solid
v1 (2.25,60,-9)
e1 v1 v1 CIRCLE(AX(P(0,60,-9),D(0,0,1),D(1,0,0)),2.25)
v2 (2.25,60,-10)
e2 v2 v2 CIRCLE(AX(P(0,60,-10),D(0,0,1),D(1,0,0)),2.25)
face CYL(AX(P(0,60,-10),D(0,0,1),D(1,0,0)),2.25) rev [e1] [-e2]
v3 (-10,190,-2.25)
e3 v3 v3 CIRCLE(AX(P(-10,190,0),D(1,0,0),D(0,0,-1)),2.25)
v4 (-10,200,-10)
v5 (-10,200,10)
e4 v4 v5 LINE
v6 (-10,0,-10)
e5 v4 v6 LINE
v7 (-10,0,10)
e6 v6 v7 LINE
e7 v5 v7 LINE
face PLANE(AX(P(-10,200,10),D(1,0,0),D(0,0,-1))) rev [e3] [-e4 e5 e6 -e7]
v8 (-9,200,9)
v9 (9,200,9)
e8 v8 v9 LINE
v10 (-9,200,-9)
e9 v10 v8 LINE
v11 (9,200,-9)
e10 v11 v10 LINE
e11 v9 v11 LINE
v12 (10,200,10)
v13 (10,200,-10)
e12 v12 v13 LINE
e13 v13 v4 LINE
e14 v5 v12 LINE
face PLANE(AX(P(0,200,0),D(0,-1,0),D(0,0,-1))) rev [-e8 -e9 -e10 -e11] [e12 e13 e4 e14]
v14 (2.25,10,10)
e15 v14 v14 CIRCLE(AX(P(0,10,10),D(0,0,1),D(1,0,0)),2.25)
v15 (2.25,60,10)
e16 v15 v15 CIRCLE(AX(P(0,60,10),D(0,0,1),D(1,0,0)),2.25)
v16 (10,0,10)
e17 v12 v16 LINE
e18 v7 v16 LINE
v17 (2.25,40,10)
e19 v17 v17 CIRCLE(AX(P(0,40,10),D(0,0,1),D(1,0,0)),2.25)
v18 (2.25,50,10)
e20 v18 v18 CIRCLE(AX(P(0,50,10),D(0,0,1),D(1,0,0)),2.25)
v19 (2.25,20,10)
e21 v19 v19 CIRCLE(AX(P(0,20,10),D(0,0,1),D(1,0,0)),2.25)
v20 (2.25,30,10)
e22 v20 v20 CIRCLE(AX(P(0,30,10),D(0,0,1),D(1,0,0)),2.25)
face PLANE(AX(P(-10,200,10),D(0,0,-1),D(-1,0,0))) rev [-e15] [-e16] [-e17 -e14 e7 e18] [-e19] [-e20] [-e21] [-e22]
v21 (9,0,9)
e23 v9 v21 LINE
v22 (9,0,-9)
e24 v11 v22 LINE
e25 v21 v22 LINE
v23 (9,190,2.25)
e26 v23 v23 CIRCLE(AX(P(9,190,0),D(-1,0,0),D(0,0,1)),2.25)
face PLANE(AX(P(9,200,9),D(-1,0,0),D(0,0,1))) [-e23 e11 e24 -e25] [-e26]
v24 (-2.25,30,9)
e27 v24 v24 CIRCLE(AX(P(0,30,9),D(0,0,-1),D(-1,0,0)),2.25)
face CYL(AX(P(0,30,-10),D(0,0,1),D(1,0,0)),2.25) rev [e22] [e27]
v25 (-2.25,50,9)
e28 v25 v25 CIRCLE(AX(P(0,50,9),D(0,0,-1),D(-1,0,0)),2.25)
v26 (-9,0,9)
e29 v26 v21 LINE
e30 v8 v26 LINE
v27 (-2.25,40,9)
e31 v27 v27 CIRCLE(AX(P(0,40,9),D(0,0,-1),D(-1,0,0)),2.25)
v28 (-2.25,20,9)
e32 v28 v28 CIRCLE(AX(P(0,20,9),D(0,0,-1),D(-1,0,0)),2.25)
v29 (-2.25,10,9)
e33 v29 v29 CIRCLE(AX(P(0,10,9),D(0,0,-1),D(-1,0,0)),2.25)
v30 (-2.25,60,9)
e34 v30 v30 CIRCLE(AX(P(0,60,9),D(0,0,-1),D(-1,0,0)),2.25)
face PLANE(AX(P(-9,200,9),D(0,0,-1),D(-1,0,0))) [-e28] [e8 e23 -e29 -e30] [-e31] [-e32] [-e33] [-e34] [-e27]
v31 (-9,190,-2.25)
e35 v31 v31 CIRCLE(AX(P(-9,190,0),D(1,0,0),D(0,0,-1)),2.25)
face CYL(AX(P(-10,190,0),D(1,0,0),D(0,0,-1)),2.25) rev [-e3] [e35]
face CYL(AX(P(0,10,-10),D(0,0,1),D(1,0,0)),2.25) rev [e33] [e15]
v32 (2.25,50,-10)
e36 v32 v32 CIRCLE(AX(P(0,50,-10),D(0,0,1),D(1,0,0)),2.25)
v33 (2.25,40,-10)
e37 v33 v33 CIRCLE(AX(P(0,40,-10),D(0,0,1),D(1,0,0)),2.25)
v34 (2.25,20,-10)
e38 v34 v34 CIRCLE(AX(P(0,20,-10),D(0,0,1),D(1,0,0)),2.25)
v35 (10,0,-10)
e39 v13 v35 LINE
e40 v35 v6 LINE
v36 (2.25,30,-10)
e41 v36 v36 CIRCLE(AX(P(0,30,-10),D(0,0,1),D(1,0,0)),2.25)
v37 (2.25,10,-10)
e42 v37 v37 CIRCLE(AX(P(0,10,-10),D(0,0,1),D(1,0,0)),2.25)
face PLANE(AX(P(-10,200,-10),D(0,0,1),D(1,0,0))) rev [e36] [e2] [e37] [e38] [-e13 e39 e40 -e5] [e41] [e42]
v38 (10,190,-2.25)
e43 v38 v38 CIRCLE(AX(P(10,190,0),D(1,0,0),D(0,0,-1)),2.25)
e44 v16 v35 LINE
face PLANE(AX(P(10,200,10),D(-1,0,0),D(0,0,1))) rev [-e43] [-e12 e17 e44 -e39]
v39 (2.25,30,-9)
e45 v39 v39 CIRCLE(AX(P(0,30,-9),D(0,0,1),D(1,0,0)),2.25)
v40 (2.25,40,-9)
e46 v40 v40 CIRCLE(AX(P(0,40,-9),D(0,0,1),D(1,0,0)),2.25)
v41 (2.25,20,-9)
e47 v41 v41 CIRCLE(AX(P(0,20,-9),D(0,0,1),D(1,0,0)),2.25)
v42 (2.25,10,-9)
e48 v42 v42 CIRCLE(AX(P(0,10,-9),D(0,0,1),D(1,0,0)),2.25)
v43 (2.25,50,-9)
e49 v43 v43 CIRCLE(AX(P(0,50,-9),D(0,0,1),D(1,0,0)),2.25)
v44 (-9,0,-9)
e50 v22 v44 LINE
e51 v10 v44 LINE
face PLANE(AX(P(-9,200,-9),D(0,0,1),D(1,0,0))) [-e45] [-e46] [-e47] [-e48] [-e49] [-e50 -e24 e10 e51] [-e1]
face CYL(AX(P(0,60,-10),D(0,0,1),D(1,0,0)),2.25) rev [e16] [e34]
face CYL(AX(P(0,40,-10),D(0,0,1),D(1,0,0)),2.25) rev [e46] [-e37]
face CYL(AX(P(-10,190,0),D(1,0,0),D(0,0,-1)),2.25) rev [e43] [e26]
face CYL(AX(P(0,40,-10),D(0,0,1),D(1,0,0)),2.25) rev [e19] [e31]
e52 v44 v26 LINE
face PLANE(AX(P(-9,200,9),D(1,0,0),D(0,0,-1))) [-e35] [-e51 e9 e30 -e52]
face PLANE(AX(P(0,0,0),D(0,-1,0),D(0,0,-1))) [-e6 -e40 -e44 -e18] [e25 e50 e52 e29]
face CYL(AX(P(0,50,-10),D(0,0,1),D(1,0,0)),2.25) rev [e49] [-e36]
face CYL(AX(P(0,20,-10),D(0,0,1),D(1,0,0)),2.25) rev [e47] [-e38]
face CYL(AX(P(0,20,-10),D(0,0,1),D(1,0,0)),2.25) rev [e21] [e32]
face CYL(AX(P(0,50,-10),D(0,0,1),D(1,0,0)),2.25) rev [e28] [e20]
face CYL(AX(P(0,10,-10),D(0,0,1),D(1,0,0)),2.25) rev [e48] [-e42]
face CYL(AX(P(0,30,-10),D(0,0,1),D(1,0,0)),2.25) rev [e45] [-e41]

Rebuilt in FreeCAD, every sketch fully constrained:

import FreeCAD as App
import Part
import Sketcher
Q = App.Units.Quantity


def add_polygon(sketch, points):
    """Adds a closed chain of lines whose ends are joined by coincident constraints."""
    first, n = sketch.GeometryCount, len(points)
    for a, b in zip(points, points[1:] + points[:1]):
        sketch.addGeometry(Part.LineSegment(App.Vector(*a, 0), App.Vector(*b, 0)), False)
    for i in range(n):
        sketch.addConstraint(Sketcher.Constraint("Coincident", first + i, 2, first + (i + 1) % n, 1))

doc = App.newDocument("Part")
body = doc.addObject("PartDesign::Body", "Body")

# Sketch on XZ plane
sketch1 = body.newObject("Sketcher::SketchObject", "Sketch")
sketch1.AttachmentSupport = (doc.getObject("XZ_Plane"), [""])
sketch1.MapMode = "FlatFace"
add_polygon(sketch1, [(-10, -10), (-10, 10), (10, 10), (10, -10)])  # lines 0-3
add_polygon(sketch1, [(9, 9), (-9, 9), (-9, -9), (9, -9)])  # lines 4-7
sketch1.addConstraint(Sketcher.Constraint("Vertical", 0))
sketch1.addConstraint(Sketcher.Constraint("Horizontal", 1))
sketch1.addConstraint(Sketcher.Constraint("Vertical", 2))
sketch1.addConstraint(Sketcher.Constraint("Horizontal", 3))
sketch1.addConstraint(Sketcher.Constraint("Horizontal", 4))
sketch1.addConstraint(Sketcher.Constraint("Vertical", 5))
sketch1.addConstraint(Sketcher.Constraint("Horizontal", 6))
sketch1.addConstraint(Sketcher.Constraint("Vertical", 7))
sketch1.addConstraint(Sketcher.Constraint("Symmetric", 0, 2, 2, 2, -1, 1))
sketch1.addConstraint(Sketcher.Constraint("Symmetric", 4, 2, 6, 2, -1, 1))
sketch1.addConstraint(Sketcher.Constraint("Equal", 3, 0))
sketch1.addConstraint(Sketcher.Constraint("Equal", 6, 5))
sketch1.addConstraint(Sketcher.Constraint("DistanceX", 1, 1, 1, 2, Q("20 mm")))
sketch1.addConstraint(Sketcher.Constraint("DistanceX", 4, 2, 4, 1, Q("18 mm")))
pad1 = body.newObject("PartDesign::Pad", "Pad")
pad1.Profile = sketch1
pad1.Length = 200
pad1.Reversed = True

# Sketch on XY plane
sketch2 = body.newObject("Sketcher::SketchObject", "Sketch001")
sketch2.AttachmentSupport = (doc.getObject("XY_Plane"), [""])
sketch2.MapMode = "FlatFace"
sketch2.AttachmentOffset = App.Placement(App.Vector(0, 0, 10), App.Rotation())
sketch2.addGeometry(Part.Circle(App.Vector(0, 10, 0), App.Vector(0, 0, 1), 2.25), False)
sketch2.addGeometry(Part.Circle(App.Vector(0, 20, 0), App.Vector(0, 0, 1), 2.25), False)
sketch2.addGeometry(Part.Circle(App.Vector(0, 30, 0), App.Vector(0, 0, 1), 2.25), False)
sketch2.addGeometry(Part.Circle(App.Vector(0, 40, 0), App.Vector(0, 0, 1), 2.25), False)
sketch2.addGeometry(Part.Circle(App.Vector(0, 50, 0), App.Vector(0, 0, 1), 2.25), False)
sketch2.addGeometry(Part.Circle(App.Vector(0, 60, 0), App.Vector(0, 0, 1), 2.25), False)
sketch2.addConstraint(Sketcher.Constraint("Equal", 0, 1))
sketch2.addConstraint(Sketcher.Constraint("Equal", 1, 2))
sketch2.addConstraint(Sketcher.Constraint("Equal", 2, 3))
sketch2.addConstraint(Sketcher.Constraint("Equal", 3, 4))
sketch2.addConstraint(Sketcher.Constraint("Equal", 4, 5))
sketch2.addConstraint(Sketcher.Constraint("PointOnObject", 0, 3, -2))
sketch2.addConstraint(Sketcher.Constraint("PointOnObject", 1, 3, -2))
sketch2.addConstraint(Sketcher.Constraint("PointOnObject", 2, 3, -2))
sketch2.addConstraint(Sketcher.Constraint("PointOnObject", 3, 3, -2))
sketch2.addConstraint(Sketcher.Constraint("PointOnObject", 4, 3, -2))
sketch2.addConstraint(Sketcher.Constraint("PointOnObject", 5, 3, -2))
sketch2.addConstraint(Sketcher.Constraint("Diameter", 0, Q("4.5 mm")))
sketch2.addConstraint(Sketcher.Constraint("DistanceY", -1, 1, 0, 3, Q("10 mm")))
sketch2.addConstraint(Sketcher.Constraint("DistanceY", -1, 1, 1, 3, Q("20 mm")))
sketch2.addConstraint(Sketcher.Constraint("DistanceY", -1, 1, 2, 3, Q("30 mm")))
sketch2.addConstraint(Sketcher.Constraint("DistanceY", -1, 1, 3, 3, Q("40 mm")))
sketch2.addConstraint(Sketcher.Constraint("DistanceY", -1, 1, 4, 3, Q("50 mm")))
sketch2.addConstraint(Sketcher.Constraint("DistanceY", -1, 1, 5, 3, Q("60 mm")))
pocket1 = body.newObject("PartDesign::Pocket", "Pocket")
pocket1.Profile = sketch2
pocket1.Type = "ThroughAll"

# Sketch on YZ plane
sketch3 = body.newObject("Sketcher::SketchObject", "Sketch002")
sketch3.AttachmentSupport = (doc.getObject("YZ_Plane"), [""])
sketch3.MapMode = "FlatFace"
sketch3.AttachmentOffset = App.Placement(App.Vector(0, 0, 10), App.Rotation())
sketch3.addGeometry(Part.Circle(App.Vector(190, 0, 0), App.Vector(0, 0, 1), 2.25), False)
sketch3.addConstraint(Sketcher.Constraint("PointOnObject", 0, 3, -1))
sketch3.addConstraint(Sketcher.Constraint("Diameter", 0, Q("4.5 mm")))
sketch3.addConstraint(Sketcher.Constraint("DistanceX", -1, 1, 0, 3, Q("190 mm")))
pocket2 = body.newObject("PartDesign::Pocket", "Pocket001")
pocket2.Profile = sketch3
pocket2.Type = "ThroughAll"

doc.recompute()
